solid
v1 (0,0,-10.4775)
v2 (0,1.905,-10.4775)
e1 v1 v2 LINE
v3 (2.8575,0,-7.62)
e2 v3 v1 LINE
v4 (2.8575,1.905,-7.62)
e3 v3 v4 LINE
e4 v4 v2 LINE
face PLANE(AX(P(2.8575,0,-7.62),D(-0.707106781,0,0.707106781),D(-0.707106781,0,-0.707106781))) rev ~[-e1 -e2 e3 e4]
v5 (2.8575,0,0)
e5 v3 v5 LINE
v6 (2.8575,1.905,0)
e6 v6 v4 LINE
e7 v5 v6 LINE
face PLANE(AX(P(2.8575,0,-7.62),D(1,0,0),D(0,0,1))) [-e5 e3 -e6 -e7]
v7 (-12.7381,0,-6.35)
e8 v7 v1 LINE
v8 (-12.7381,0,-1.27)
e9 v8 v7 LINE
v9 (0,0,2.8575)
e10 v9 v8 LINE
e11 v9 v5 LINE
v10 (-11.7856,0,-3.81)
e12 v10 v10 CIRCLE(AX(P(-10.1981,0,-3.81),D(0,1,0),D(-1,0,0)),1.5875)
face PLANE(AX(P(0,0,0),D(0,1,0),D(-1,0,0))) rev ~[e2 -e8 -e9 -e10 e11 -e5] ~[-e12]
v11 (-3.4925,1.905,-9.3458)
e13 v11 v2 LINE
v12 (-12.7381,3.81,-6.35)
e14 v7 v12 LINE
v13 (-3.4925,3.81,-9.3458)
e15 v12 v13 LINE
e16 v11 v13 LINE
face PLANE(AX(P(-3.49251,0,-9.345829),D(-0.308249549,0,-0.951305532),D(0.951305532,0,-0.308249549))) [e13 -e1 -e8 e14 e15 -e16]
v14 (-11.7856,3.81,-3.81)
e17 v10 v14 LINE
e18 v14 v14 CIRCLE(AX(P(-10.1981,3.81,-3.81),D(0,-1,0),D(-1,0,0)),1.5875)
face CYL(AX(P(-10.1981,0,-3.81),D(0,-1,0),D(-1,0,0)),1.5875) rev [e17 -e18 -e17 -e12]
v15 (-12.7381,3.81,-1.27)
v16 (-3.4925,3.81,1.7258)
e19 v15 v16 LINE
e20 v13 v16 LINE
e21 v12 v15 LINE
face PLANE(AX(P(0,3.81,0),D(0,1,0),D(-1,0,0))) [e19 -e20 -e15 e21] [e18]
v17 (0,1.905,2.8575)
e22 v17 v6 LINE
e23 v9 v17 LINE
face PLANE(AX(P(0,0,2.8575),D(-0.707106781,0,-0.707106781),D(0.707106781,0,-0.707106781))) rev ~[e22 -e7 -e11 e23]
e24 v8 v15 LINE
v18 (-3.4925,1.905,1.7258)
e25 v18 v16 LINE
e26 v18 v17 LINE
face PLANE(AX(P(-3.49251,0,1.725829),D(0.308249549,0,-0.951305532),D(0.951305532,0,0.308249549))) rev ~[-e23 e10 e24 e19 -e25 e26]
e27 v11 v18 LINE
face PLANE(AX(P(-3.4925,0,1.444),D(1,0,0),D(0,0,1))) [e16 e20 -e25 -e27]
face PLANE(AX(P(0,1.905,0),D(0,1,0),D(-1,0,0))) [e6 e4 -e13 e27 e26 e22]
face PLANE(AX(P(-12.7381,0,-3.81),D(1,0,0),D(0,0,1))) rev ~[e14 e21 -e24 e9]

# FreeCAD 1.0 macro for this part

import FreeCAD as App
import Part
import Sketcher
from FreeCAD import Vector
Q = App.Units.Quantity


def add_polygon(sketch, points):
    """Adds a closed chain of lines whose ends are joined by coincident constraints."""
    first, n = sketch.GeometryCount, len(points)
    for a, b in zip(points, points[1:] + points[:1]):
        sketch.addGeometry(Part.LineSegment(App.Vector(*a, 0), App.Vector(*b, 0)), False)
    for i in range(n):
        sketch.addConstraint(Sketcher.Constraint("Coincident", first + i, 2, first + (i + 1) % n, 1))

doc = App.newDocument("Part")
params = doc.addObject("Spreadsheet::Sheet", "Params")
for row, (alias, value) in enumerate([
    ("sketch1_diameter", "0.125 in"),
    ("sketch1_height", "0.3 in"),
    ("pad1_length", "0.075 in"),
    ("sketch2_diameter", "0.125 in"),
    ("sketch2_height", "0.2 in"),
    ("pad2_length", "0.15 in"),
    ("sketch3_diameter", "0.125 in"),
    ("pad3_length", "0.075 in"),
], start=1):
    params.set(f"A{row}", alias)
    params.set(f"B{row}", "=" + value)
    params.setAlias(f"B{row}", alias)

body = doc.addObject("PartDesign::Body", "Body")

sketch1 = body.newObject("Sketcher::SketchObject", "Sketch")
sketch1.AttachmentSupport = (doc.getObject("XZ_Plane"), [""])
sketch1.MapMode = "FlatFace"
add_polygon(sketch1, [(-3.5, 1.7), (0, 2.9), (2.9, 0), (2.9, -7.6), (0, -10.5), (-3.5, -9.3)])
sketch1.addGeometry(Part.Circle(Vector(0, 0, 0), Vector(0, 0, 1), 1.6), False)
sketch1.addGeometry(Part.Circle(Vector(0, -7.6, 0), Vector(0, 0, 1), 1.6), False)
sketch1.addConstraint([
    Sketcher.Constraint("Vertical", 2),
    Sketcher.Constraint("Vertical", 5),
    Sketcher.Constraint("Coincident", 6, 3, -1, 1),
    Sketcher.Constraint("Equal", 6, 7),
    Sketcher.Constraint("PointOnObject", 7, 3, -2),
    Sketcher.Constraint("PointOnObject", 0, 2, -2),
    Sketcher.Constraint("PointOnObject", 1, 2, -1),
    Sketcher.Constraint("PointOnObject", 3, 2, -2),
    Sketcher.Constraint("Perpendicular", 1, 3),
    Sketcher.Constraint("Horizontal", 7, 3, 2, 2),
    Sketcher.Constraint("Equal", 1, 3),
    Sketcher.Constraint("Equal", 0, 4),
    Sketcher.Constraint("Diameter", 6, Q("0.125 in")),
    Sketcher.Constraint("DistanceY", 2, 2, 2, 1, Q("0.3 in")),
    Sketcher.Constraint("DistanceX", 4, 2, 2, 2, Q("0.25 in")),
    Sketcher.Constraint("DistanceY", 5, 1, 5, 2, Q("0.4359 in")),
    Sketcher.Constraint("DistanceY", 3, 2, 0, 2, Q("0.525 in")),
])
sketch1.setExpression("Constraints[18]", "Params.sketch1_diameter")
sketch1.setExpression("Constraints[19]", "Params.sketch1_height")
pad1 = body.newObject("PartDesign::Pad", "Pad")
pad1.Profile = sketch1
pad1.setExpression("Length", "Params.pad1_length")
pad1.Reversed = True

sketch2 = body.newObject("Sketcher::SketchObject", "Sketch001")
sketch2.AttachmentSupport = (doc.getObject("XZ_Plane"), [""])
sketch2.MapMode = "FlatFace"
add_polygon(sketch2, [(-3.5, 1.7), (-3.5, -9.3), (-12.7, -6.3), (-12.7, -1.3)])
sketch2.addGeometry(Part.Circle(Vector(-10.2, -3.8, 0), Vector(0, 0, 1), 1.6), False)
sketch2.addConstraint([
    Sketcher.Constraint("Vertical", 0),
    Sketcher.Constraint("Vertical", 2),
    Sketcher.Constraint("Equal", 1, 3),
    Sketcher.Constraint("Diameter", 4, Q("0.125 in")),
    Sketcher.Constraint("DistanceY", 2, 1, 2, 2, Q("0.2 in")),
    Sketcher.Constraint("DistanceX", 1, 2, 4, 3, Q("0.1 in")),
    Sketcher.Constraint("DistanceY", 1, 2, 4, 3, Q("0.1 in")),
    Sketcher.Constraint("DistanceY", 1, 2, -1, 1, Q("0.25 in")),
    Sketcher.Constraint("DistanceY", 0, 2, 0, 1, Q("0.4359 in")),
    Sketcher.Constraint("DistanceX", 4, 3, 0, 2, Q("0.264 in")),
    Sketcher.Constraint("DistanceX", 4, 3, -1, 1, Q("0.4015 in")),
])
sketch2.setExpression("Constraints[7]", "Params.sketch2_diameter")
sketch2.setExpression("Constraints[8]", "Params.sketch2_height")
pad2 = body.newObject("PartDesign::Pad", "Pad001")
pad2.Profile = sketch2
pad2.setExpression("Length", "Params.pad2_length")
pad2.Reversed = True

sketch3 = body.newObject("Sketcher::SketchObject", "Sketch002")
sketch3.AttachmentSupport = (doc.getObject("XZ_Plane"), [""])
sketch3.MapMode = "FlatFace"
sketch3.addGeometry([
    Part.Circle(Vector(0, 0, 0), Vector(0, 0, 1), 1.6),
    Part.Circle(Vector(0, -7.6, 0), Vector(0, 0, 1), 1.6),
], False)
sketch3.addConstraint([
    Sketcher.Constraint("Coincident", 0, 3, -1, 1),
    Sketcher.Constraint("Equal", 0, 1),
    Sketcher.Constraint("PointOnObject", 1, 3, -2),
    Sketcher.Constraint("Diameter", 0, Q("0.125 in")),
    Sketcher.Constraint("DistanceY", 1, 3, -1, 1, Q("0.3 in")),
])
sketch3.setExpression("Constraints[3]", "Params.sketch3_diameter")
pad3 = body.newObject("PartDesign::Pad", "Pad002")
pad3.Profile = sketch3
pad3.setExpression("Length", "Params.pad3_length")
pad3.Reversed = True

doc.recompute()
